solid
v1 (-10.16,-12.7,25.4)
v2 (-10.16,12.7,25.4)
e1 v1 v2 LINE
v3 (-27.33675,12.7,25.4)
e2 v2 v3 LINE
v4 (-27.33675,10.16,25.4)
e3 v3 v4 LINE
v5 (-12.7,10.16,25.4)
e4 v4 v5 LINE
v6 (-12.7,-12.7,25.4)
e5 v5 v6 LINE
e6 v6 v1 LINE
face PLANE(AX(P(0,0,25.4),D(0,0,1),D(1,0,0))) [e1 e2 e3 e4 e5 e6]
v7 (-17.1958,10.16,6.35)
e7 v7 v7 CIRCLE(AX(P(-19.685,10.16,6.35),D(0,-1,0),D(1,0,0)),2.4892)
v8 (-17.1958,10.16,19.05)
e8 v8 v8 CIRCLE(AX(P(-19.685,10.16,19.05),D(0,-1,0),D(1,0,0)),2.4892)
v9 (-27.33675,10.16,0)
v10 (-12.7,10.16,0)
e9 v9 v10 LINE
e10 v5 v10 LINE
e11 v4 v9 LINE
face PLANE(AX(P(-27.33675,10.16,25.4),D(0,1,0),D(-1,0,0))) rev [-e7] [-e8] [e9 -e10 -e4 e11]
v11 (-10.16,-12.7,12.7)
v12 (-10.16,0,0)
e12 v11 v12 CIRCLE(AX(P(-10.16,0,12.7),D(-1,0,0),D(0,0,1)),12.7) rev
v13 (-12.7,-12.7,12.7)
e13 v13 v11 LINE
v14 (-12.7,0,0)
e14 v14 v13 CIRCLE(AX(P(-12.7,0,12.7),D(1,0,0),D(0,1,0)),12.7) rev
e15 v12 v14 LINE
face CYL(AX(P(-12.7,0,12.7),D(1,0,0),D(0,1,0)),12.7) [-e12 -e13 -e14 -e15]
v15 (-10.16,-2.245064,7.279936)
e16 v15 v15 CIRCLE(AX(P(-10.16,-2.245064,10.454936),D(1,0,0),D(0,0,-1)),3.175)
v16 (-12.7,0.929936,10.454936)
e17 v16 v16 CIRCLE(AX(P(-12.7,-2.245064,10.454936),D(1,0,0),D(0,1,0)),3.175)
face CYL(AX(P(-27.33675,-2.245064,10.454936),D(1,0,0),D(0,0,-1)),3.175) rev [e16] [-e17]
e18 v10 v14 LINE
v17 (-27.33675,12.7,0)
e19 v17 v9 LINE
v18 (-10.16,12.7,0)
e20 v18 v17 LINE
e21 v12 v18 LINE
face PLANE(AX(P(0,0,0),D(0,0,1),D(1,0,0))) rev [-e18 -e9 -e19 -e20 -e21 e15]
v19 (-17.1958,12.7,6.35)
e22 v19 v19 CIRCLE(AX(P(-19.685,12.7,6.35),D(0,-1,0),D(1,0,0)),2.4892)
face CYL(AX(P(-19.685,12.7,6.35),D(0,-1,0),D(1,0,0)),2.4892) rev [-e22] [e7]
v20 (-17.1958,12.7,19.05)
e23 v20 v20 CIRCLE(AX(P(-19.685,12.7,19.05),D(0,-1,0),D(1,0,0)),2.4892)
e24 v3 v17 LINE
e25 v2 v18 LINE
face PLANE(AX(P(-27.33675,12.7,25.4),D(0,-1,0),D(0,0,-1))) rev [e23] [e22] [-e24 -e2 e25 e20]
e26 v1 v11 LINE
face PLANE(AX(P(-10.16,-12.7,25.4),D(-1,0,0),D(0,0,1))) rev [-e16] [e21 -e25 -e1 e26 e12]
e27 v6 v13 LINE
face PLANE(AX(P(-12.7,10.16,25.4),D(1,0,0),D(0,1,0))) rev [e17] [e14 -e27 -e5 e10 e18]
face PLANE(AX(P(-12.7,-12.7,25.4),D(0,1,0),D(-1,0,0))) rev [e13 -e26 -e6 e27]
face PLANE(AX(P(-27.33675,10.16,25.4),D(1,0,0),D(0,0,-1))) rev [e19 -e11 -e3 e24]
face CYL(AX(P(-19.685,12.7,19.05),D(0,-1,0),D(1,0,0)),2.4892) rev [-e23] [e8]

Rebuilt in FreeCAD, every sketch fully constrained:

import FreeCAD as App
import Part
import Sketcher
from FreeCAD import Vector
Q = App.Units.Quantity


def edges_at(feature, points):
    """Names of the edges that pass closest to the given points."""
    edges = feature.Shape.Edges
    near = lambda p: min(range(len(edges)), key=lambda i: edges[i].distToShape(Part.Vertex(*p))[0])
    return sorted({f"Edge{near(p) + 1}" for p in points})


def add_polygon(sketch, points):
    """Adds a closed chain of lines whose ends are joined by coincident constraints."""
    first, n = sketch.GeometryCount, len(points)
    for a, b in zip(points, points[1:] + points[:1]):
        sketch.addGeometry(Part.LineSegment(App.Vector(*a, 0), App.Vector(*b, 0)), False)
    for i in range(n):
        sketch.addConstraint(Sketcher.Constraint("Coincident", first + i, 2, first + (i + 1) % n, 1))

doc = App.newDocument("Part")
params = doc.addObject("Spreadsheet::Sheet", "Params")
for row, (alias, value) in enumerate([
    ("sketch1_height", "1 in"),
    ("sketch1_width", "0.1 in"),
    ("pad1_length", "1 in"),
    ("fillet_radius", "0.5 in"),
    ("sketch2_diameter", "0.25 in"),
    ("sketch3_diameter", "0.196 in"),
], start=1):
    params.set(f"A{row}", alias)
    params.set(f"B{row}", "=" + value)
    params.setAlias(f"B{row}", alias)

body = doc.addObject("PartDesign::Body", "Body")

# Sketch on XY plane
sketch1 = body.newObject("Sketcher::SketchObject", "Sketch")
sketch1.AttachmentSupport = (doc.getObject("XY_Plane"), [""])
sketch1.MapMode = "FlatFace"
add_polygon(sketch1, [(-10.2, -12.7), (-10.2, 12.7), (-27.3, 12.7), (-27.3, 10.2), (-12.7, 10.2), (-12.7, -12.7)])  # lines 0-5
sketch1.addConstraint([
    Sketcher.Constraint("Vertical", 0),
    Sketcher.Constraint("Horizontal", 1),
    Sketcher.Constraint("Vertical", 2),
    Sketcher.Constraint("Horizontal", 3),
    Sketcher.Constraint("Vertical", 4),
    Sketcher.Constraint("Horizontal", 5),
    Sketcher.Constraint("Equal", 5, 2),
    Sketcher.Constraint("DistanceY", 0, 1, 0, 2, Q("1 in")),
    Sketcher.Constraint("DistanceX", 5, 1, 5, 2, Q("0.1 in")),
    Sketcher.Constraint("DistanceX", 0, 2, -1, 1, Q("0.4 in")),
    Sketcher.Constraint("DistanceY", -1, 1, 0, 2, Q("0.5 in")),
    Sketcher.Constraint("DistanceX", 1, 2, 1, 1, 17.17675),
])
sketch1.setExpression("Constraints[13]", "Params.sketch1_height")
sketch1.setExpression("Constraints[14]", "Params.sketch1_width")
pad1 = body.newObject("PartDesign::Pad", "Pad")
pad1.Profile = sketch1
pad1.setExpression("Length", "Params.pad1_length")
doc.recompute()

fillet = body.newObject("PartDesign::Fillet", "Fillet")
fillet.Base = (pad1, edges_at(pad1, [(-11.43, -12.7, 0)]))
fillet.setExpression("Radius", "Params.fillet_radius")

# Sketch on YZ plane
sketch2 = body.newObject("Sketcher::SketchObject", "Sketch001")
sketch2.AttachmentSupport = (doc.getObject("YZ_Plane"), [""])
sketch2.MapMode = "FlatFace"
sketch2.AttachmentOffset = App.Placement(Vector(0, 0, -0.4 * 25.4), App.Rotation())
sketch2.addGeometry(Part.Circle(Vector(-2.2, 10.5, 0), Vector(0, 0, 1), 3.2), False)
sketch2.addConstraint([
    Sketcher.Constraint("Diameter", 0, Q("0.25 in")),
    Sketcher.Constraint("DistanceX", 0, 3, -1, 1, 2.245064),
    Sketcher.Constraint("DistanceY", -1, 1, 0, 3, 10.454936),
])
sketch2.setExpression("Constraints[0]", "Params.sketch2_diameter")
pocket1 = body.newObject("PartDesign::Pocket", "Pocket")
pocket1.Profile = sketch2
pocket1.Type = "ThroughAll"

# Sketch on XZ plane
sketch3 = body.newObject("Sketcher::SketchObject", "Sketch002")
sketch3.AttachmentSupport = (doc.getObject("XZ_Plane"), [""])
sketch3.MapMode = "FlatFace"
sketch3.AttachmentOffset = App.Placement(Vector(0, 0, -0.4 * 25.4), App.Rotation())
sketch3.addGeometry([
    Part.Circle(Vector(-19.7, 19.1, 0), Vector(0, 0, 1), 2.5),
    Part.Circle(Vector(-19.7, 6.3, 0), Vector(0, 0, 1), 2.5),
], False)
sketch3.addConstraint([
    Sketcher.Constraint("Equal", 0, 1),
    Sketcher.Constraint("Vertical", 0, 3, 1, 3),
    Sketcher.Constraint("Diameter", 0, Q("0.196 in")),
    Sketcher.Constraint("DistanceY", 1, 3, 0, 3, Q("0.5 in")),
    Sketcher.Constraint("DistanceY", -1, 1, 0, 3, Q("0.75 in")),
    Sketcher.Constraint("DistanceX", 0, 3, -1, 1, Q("0.775 in")),
])
sketch3.setExpression("Constraints[2]", "Params.sketch3_diameter")
pocket2 = body.newObject("PartDesign::Pocket", "Pocket001")
pocket2.Profile = sketch3
pocket2.Type = "ThroughAll"

doc.recompute()
